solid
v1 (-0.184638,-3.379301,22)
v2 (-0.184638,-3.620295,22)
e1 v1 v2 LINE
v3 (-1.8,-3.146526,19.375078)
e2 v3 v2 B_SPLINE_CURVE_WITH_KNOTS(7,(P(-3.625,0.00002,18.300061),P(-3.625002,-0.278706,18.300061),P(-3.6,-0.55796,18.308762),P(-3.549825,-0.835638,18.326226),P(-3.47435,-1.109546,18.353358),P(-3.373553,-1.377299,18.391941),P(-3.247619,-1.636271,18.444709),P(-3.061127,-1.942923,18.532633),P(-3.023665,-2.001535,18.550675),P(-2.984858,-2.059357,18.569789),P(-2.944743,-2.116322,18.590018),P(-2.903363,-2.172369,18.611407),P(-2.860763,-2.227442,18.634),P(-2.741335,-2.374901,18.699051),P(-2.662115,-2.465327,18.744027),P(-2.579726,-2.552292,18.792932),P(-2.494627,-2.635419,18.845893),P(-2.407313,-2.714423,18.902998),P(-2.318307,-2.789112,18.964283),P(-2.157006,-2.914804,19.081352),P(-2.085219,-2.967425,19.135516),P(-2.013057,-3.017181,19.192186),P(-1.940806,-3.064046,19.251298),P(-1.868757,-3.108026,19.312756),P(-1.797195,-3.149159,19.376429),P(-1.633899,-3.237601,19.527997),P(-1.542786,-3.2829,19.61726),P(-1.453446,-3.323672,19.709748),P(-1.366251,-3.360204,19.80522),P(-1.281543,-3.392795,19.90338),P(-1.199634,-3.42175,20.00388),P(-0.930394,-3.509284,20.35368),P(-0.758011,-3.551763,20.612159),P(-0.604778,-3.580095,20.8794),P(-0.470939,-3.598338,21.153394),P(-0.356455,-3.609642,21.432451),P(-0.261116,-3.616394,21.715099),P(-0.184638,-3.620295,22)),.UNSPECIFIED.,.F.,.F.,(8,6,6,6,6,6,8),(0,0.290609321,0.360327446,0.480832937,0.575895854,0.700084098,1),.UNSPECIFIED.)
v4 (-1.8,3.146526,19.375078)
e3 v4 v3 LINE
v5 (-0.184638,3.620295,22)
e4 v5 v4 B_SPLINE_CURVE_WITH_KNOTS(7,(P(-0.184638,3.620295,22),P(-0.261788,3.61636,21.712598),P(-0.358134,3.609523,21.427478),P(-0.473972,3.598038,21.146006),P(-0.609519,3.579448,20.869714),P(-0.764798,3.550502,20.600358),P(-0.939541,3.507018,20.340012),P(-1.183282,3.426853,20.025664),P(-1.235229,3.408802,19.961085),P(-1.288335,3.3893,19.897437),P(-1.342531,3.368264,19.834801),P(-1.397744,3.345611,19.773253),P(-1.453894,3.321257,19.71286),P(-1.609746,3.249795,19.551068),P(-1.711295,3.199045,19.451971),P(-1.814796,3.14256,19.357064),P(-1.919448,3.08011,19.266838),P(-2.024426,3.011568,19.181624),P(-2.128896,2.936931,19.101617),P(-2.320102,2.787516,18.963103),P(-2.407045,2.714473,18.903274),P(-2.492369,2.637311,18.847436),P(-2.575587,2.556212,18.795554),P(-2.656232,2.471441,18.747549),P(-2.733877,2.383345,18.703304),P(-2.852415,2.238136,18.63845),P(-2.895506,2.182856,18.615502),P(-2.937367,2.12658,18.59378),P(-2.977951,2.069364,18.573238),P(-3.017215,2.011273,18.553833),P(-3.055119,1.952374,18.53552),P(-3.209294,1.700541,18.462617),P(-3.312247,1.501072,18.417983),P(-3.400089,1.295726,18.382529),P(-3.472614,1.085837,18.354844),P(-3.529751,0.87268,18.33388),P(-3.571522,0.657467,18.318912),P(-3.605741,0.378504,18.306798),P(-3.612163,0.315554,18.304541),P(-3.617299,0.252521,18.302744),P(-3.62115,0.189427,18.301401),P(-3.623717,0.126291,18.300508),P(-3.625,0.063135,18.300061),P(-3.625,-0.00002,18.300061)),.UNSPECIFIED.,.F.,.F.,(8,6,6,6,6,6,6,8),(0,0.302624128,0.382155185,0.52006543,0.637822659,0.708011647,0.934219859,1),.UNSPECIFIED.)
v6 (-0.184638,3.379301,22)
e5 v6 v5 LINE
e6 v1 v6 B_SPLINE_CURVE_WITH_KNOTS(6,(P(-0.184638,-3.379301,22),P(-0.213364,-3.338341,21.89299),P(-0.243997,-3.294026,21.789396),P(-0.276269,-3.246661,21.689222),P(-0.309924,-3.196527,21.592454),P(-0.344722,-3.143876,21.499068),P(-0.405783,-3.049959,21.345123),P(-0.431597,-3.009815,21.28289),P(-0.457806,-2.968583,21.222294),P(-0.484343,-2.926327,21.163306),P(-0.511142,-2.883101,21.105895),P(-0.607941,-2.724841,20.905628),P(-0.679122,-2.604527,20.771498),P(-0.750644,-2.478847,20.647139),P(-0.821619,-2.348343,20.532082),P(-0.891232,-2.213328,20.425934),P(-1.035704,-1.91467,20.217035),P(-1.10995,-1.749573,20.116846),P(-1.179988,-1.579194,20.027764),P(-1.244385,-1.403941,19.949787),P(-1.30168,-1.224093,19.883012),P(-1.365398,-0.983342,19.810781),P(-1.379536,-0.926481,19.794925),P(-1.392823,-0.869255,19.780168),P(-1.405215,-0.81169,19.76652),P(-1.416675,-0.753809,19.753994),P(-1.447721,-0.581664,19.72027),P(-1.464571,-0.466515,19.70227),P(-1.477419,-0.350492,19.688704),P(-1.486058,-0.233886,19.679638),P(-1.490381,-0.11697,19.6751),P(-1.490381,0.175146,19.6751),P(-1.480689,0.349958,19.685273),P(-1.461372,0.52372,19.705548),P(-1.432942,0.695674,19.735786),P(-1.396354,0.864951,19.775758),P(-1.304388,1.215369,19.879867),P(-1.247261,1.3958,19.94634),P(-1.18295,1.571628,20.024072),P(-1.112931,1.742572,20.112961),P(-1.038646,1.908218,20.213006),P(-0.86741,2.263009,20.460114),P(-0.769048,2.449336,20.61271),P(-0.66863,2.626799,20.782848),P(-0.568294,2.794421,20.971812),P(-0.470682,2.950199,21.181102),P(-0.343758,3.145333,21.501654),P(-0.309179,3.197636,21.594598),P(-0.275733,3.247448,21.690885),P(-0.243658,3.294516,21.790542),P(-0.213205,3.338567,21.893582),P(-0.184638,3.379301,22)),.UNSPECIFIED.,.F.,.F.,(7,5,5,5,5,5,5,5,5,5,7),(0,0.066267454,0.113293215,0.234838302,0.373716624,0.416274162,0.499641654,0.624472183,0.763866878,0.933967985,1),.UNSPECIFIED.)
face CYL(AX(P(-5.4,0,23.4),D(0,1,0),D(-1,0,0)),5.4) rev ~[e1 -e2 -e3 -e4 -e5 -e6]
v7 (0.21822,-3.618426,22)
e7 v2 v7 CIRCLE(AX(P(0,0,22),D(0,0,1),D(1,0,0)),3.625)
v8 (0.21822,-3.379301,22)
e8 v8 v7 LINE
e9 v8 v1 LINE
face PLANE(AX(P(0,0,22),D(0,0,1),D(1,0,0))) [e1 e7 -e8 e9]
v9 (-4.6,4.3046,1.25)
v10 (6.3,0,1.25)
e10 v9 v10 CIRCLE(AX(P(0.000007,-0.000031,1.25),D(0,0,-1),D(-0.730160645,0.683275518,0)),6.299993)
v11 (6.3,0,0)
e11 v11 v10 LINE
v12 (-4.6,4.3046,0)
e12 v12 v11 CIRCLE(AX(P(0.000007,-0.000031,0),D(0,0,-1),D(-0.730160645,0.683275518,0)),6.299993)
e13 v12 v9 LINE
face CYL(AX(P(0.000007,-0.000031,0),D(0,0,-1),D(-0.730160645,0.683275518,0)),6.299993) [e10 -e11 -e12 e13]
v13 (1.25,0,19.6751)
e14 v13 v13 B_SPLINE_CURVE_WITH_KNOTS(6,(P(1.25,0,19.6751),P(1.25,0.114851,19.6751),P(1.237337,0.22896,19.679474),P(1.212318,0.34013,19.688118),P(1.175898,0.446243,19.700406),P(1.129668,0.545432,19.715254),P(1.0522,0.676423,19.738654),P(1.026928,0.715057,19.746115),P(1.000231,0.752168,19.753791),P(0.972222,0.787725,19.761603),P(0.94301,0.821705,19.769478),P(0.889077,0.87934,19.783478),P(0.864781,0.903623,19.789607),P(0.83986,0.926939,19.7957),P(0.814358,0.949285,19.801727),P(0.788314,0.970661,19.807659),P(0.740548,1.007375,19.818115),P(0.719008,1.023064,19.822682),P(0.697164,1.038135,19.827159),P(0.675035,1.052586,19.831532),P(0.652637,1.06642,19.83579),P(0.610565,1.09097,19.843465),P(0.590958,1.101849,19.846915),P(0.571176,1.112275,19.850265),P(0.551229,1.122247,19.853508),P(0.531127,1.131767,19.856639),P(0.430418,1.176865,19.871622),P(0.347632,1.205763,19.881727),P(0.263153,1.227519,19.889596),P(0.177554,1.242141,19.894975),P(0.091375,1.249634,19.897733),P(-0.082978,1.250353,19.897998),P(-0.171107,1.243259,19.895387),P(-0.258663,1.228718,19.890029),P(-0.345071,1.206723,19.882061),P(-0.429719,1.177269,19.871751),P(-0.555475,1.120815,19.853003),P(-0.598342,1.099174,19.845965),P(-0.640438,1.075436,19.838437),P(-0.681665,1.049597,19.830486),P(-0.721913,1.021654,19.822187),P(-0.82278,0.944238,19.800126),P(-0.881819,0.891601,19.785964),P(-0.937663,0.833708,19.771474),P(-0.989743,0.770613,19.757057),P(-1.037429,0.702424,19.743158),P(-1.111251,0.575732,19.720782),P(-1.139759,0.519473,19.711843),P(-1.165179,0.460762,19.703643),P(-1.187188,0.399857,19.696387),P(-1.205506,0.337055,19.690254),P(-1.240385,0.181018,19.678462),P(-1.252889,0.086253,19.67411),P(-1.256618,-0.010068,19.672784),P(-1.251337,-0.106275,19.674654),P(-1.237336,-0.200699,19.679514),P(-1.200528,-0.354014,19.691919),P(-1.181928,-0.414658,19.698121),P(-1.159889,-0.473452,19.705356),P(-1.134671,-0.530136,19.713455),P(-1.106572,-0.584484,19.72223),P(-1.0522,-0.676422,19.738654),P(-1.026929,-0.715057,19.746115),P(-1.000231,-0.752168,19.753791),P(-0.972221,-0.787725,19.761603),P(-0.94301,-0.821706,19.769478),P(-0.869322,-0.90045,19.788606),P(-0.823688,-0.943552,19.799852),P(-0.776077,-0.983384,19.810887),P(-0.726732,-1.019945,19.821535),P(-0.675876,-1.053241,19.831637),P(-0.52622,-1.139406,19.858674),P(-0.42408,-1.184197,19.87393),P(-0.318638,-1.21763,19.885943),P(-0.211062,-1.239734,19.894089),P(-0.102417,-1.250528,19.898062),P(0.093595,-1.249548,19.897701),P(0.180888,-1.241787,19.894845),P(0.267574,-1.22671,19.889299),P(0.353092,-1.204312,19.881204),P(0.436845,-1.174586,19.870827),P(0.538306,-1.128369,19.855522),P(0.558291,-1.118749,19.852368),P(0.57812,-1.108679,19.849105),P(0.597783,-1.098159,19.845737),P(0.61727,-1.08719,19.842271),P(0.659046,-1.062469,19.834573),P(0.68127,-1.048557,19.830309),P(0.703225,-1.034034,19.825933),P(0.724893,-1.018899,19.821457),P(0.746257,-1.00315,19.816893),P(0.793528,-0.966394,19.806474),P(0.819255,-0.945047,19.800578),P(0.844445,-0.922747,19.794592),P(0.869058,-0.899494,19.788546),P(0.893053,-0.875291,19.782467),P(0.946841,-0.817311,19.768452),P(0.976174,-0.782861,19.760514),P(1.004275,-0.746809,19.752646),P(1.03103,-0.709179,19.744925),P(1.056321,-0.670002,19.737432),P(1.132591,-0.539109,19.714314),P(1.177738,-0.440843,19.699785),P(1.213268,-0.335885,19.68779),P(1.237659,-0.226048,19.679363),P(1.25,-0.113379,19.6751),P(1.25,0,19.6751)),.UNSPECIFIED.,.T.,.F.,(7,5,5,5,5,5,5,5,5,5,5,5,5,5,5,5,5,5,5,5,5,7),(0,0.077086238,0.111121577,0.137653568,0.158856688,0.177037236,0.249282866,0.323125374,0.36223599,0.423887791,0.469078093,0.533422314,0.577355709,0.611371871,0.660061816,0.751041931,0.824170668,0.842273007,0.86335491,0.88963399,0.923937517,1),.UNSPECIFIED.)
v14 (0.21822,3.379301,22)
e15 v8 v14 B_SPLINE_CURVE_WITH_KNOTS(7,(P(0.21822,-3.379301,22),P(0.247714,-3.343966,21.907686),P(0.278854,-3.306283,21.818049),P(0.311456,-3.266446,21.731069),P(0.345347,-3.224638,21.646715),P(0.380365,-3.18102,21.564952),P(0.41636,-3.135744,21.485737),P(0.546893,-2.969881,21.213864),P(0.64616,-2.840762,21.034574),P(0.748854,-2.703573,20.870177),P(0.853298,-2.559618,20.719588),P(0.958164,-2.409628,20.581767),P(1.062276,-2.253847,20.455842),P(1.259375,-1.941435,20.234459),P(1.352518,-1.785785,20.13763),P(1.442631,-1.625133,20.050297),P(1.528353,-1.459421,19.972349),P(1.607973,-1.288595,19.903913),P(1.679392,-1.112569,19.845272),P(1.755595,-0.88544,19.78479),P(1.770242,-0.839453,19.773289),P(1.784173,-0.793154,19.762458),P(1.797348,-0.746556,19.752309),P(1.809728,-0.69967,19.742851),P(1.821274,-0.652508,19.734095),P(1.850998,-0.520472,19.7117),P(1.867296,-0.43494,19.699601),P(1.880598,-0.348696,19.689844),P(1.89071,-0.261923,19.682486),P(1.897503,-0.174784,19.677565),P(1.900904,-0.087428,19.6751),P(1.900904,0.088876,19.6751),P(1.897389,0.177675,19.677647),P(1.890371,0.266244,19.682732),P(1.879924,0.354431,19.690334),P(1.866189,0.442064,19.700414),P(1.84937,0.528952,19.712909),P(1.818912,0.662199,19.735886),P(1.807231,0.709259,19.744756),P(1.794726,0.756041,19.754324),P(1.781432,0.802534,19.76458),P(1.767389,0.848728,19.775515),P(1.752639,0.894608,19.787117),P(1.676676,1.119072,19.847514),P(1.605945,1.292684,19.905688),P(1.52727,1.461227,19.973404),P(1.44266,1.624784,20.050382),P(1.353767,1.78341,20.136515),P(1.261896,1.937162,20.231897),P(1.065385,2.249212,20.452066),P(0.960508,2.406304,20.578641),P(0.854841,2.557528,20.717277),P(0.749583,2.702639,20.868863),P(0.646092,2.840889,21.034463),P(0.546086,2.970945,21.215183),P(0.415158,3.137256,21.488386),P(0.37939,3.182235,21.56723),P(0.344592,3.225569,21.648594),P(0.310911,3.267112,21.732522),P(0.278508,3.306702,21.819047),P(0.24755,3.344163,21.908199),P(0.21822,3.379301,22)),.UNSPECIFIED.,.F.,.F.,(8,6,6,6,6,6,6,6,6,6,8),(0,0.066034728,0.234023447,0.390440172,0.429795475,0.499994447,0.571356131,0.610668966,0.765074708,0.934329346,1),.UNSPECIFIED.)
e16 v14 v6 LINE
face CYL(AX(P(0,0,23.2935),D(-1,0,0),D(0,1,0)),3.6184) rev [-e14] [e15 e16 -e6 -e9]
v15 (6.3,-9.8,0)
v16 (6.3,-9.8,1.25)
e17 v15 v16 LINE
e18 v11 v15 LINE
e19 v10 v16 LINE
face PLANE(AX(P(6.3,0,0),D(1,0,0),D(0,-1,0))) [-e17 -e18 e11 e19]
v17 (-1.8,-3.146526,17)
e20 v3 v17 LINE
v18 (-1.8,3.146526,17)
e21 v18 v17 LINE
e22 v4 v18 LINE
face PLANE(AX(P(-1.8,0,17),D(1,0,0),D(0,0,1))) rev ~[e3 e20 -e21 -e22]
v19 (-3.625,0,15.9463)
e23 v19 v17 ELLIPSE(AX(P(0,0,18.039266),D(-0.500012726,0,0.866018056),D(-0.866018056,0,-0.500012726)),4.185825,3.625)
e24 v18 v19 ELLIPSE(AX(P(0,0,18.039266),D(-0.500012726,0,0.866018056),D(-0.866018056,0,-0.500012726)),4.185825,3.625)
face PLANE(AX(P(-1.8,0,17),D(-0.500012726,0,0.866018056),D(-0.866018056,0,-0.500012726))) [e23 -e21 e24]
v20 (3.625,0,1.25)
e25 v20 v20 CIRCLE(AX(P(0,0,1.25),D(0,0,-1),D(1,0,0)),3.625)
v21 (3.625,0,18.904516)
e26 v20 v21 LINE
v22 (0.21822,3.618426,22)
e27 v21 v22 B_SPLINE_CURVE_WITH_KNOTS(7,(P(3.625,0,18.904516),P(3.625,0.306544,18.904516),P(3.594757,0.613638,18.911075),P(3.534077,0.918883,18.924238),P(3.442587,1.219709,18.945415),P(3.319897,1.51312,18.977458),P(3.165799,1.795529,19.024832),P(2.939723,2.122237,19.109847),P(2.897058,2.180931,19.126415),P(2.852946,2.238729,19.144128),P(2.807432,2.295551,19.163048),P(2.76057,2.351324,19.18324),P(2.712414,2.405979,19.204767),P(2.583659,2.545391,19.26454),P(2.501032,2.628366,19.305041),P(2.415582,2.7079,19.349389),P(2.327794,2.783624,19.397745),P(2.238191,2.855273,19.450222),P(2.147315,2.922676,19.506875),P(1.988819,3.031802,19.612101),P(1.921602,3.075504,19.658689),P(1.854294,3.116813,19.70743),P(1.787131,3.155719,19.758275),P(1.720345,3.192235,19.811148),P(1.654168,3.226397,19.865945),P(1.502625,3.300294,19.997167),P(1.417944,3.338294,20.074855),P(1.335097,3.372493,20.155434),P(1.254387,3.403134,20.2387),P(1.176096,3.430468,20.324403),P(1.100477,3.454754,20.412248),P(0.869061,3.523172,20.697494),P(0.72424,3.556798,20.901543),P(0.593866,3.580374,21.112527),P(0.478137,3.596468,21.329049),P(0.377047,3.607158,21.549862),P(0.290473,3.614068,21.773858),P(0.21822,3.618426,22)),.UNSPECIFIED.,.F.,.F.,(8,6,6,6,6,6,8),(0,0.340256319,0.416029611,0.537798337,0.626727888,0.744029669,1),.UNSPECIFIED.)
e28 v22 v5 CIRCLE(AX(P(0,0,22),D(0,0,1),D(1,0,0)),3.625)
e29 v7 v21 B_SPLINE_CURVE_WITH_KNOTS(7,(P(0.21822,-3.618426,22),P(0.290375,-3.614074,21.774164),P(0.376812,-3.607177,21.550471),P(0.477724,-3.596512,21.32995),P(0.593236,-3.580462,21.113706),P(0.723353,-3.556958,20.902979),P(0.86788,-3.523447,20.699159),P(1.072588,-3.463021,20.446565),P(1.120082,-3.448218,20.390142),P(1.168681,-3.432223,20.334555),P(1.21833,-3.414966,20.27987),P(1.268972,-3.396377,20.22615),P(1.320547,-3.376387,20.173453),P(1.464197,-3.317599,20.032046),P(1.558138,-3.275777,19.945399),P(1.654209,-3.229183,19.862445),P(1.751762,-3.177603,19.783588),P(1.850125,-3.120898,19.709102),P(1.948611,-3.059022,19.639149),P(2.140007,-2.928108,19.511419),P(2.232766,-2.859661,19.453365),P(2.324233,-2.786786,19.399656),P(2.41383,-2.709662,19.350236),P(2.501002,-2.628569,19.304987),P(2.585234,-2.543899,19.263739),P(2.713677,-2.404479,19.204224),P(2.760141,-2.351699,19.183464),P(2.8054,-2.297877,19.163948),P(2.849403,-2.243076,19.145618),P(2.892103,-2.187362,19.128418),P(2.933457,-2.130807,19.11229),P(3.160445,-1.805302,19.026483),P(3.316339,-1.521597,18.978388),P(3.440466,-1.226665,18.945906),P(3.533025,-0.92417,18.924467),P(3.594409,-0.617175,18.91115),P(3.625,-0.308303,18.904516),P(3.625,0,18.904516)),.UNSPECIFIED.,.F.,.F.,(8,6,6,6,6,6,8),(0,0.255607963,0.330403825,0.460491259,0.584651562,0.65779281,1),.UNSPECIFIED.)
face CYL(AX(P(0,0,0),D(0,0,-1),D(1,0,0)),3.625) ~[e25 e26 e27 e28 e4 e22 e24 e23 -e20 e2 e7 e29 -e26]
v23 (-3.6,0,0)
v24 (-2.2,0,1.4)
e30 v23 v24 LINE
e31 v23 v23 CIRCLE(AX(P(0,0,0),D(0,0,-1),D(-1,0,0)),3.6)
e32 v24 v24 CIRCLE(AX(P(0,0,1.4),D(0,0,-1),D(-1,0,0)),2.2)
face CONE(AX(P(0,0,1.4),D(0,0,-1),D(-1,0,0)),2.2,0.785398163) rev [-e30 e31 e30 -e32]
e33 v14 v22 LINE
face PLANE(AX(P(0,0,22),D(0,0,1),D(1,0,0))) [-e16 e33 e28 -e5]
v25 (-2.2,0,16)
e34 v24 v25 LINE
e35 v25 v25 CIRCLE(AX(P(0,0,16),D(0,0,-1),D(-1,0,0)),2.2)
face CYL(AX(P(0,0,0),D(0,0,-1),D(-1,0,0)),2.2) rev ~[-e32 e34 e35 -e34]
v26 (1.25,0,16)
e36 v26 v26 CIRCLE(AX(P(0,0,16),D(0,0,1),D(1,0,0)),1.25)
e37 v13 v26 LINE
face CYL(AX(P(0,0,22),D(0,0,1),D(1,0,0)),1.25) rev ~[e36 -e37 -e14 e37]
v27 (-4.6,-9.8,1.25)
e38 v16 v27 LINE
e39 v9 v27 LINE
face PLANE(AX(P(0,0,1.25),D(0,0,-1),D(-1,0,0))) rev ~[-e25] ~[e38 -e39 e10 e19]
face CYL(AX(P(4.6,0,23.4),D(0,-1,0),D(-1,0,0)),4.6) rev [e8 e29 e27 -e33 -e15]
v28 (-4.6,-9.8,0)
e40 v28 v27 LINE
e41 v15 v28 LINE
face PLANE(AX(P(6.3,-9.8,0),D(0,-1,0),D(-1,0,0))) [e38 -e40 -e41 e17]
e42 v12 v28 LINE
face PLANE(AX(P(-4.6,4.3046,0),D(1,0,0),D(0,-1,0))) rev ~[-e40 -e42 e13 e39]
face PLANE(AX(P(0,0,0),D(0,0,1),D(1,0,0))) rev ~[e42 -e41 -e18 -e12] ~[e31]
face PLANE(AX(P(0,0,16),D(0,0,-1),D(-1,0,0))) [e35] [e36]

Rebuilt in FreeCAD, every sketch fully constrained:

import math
import FreeCAD as App
import Part
import Sketcher

V = App.Vector
Q = App.Units.Quantity


def edges_at(feature, points):
    """Names of the edges that pass closest to the given points."""
    edges = feature.Shape.Edges
    near = lambda p: min(range(len(edges)), key=lambda i: edges[i].distToShape(Part.Vertex(*p))[0])
    return sorted({f"Edge{near(p) + 1}" for p in points})

doc = App.newDocument("Part")
body = doc.addObject("PartDesign::Body", "Body")

# Sketch on XY plane
sketch1 = body.newObject("Sketcher::SketchObject", "Sketch")
sketch1.AttachmentSupport = (doc.getObject("XY_Plane"), [""])
sketch1.MapMode = "FlatFace"
sketch1.addGeometry(Part.Circle(V(0, 0, 0), V(0, 0, 1), 3.6), False)
sketch1.addConstraint(Sketcher.Constraint("Coincident", 0, 3, -1, 1))
sketch1.addConstraint(Sketcher.Constraint("Diameter", 0, Q("7.25 mm")))
pad1 = body.newObject("PartDesign::Pad", "Pad")
pad1.Profile = sketch1
pad1.Length = 22

# Sketch on XY plane
sketch2 = body.newObject("Sketcher::SketchObject", "Sketch001")
sketch2.AttachmentSupport = (doc.getObject("XY_Plane"), [""])
sketch2.MapMode = "FlatFace"
sketch2.addGeometry(Part.LineSegment(V(-5, -10, 0), V(-5, 4, 0)), False)
sketch2.addGeometry(Part.ArcOfCircle(Part.Circle(V(0, 0, 0), V(0, 0, 1), 6), math.radians(0), math.radians(137)), False)
sketch2.addGeometry(Part.LineSegment(V(6, 0, 0), V(6, -10, 0)), False)
sketch2.addGeometry(Part.LineSegment(V(6, -10, 0), V(-5, -10, 0)), False)
sketch2.addConstraint(Sketcher.Constraint("Coincident", 0, 2, 1, 2))
sketch2.addConstraint(Sketcher.Constraint("Tangent", 1, 1, 2, 1))
sketch2.addConstraint(Sketcher.Constraint("Coincident", 2, 2, 3, 1))
sketch2.addConstraint(Sketcher.Constraint("Coincident", 3, 2, 0, 1))
sketch2.addConstraint(Sketcher.Constraint("Vertical", 0))
sketch2.addConstraint(Sketcher.Constraint("Vertical", 2))
sketch2.addConstraint(Sketcher.Constraint("Horizontal", 3))
sketch2.addConstraint(Sketcher.Constraint("Coincident", 1, 3, -1, 1))
sketch2.addConstraint(Sketcher.Constraint("Radius", 1, Q("6.3 mm")))
sketch2.addConstraint(Sketcher.Constraint("DistanceY", 2, 2, 2, 1, Q("9.8 mm")))
sketch2.addConstraint(Sketcher.Constraint("DistanceX", 0, 2, -1, 1, Q("4.6 mm")))
pad2 = body.newObject("PartDesign::Pad", "Pad001")
pad2.Profile = sketch2
pad2.Length = 1.25

# Sketch on XY plane
sketch3 = body.newObject("Sketcher::SketchObject", "Sketch002")
sketch3.AttachmentSupport = (doc.getObject("XY_Plane"), [""])
sketch3.MapMode = "FlatFace"
sketch3.addGeometry(Part.Circle(V(0, 0, 0), V(0, 0, 1), 2.2), False)
sketch3.addConstraint(Sketcher.Constraint("Coincident", 0, 3, -1, 1))
sketch3.addConstraint(Sketcher.Constraint("Diameter", 0, Q("4.4 mm")))
pocket1 = body.newObject("PartDesign::Pocket", "Pocket")
pocket1.Profile = sketch3
pocket1.Length = 16
pocket1.Reversed = True

# Sketch on XY plane
sketch4 = body.newObject("Sketcher::SketchObject", "Sketch003")
sketch4.AttachmentSupport = (doc.getObject("XY_Plane"), [""])
sketch4.MapMode = "FlatFace"
sketch4.AttachmentOffset = App.Placement(V(0, 0, 22), App.Rotation())
sketch4.addGeometry(Part.Circle(V(0, 0, 0), V(0, 0, 1), 1.2), False)
sketch4.addConstraint(Sketcher.Constraint("Coincident", 0, 3, -1, 1))
sketch4.addConstraint(Sketcher.Constraint("Diameter", 0, Q("2.5 mm")))
pocket2 = body.newObject("PartDesign::Pocket", "Pocket001")
pocket2.Profile = sketch4
pocket2.Type = "UpToFirst"
doc.recompute()

chamfer = body.newObject("PartDesign::Chamfer", "Chamfer")
chamfer.Base = (pocket2, edges_at(pocket2, [(2.2, 0, 0)]))
chamfer.Size = 1.4

# Sketch on XZ plane
sketch5 = body.newObject("Sketcher::SketchObject", "Sketch004")
sketch5.AttachmentSupport = (doc.getObject("XZ_Plane"), [""])
sketch5.MapMode = "FlatFace"
sketch5.addGeometry(Part.LineSegment(V(-1.8, 17, 0), V(-3.6, 15.9, 0)), False)
sketch5.addGeometry(Part.LineSegment(V(-3.6, 15.9, 0), V(-3.6, 22, 0)), False)
sketch5.addGeometry(Part.LineSegment(V(-3.6, 22, 0), V(-1.8, 22, 0)), False)
sketch5.addGeometry(Part.LineSegment(V(-1.8, 22, 0), V(-1.8, 17, 0)), False)
sketch5.addConstraint(Sketcher.Constraint("Coincident", 0, 2, 1, 1))
sketch5.addConstraint(Sketcher.Constraint("Coincident", 1, 2, 2, 1))
sketch5.addConstraint(Sketcher.Constraint("Coincident", 2, 2, 3, 1))
sketch5.addConstraint(Sketcher.Constraint("Coincident", 3, 2, 0, 1))
sketch5.addConstraint(Sketcher.Constraint("Vertical", 1))
sketch5.addConstraint(Sketcher.Constraint("Horizontal", 2))
sketch5.addConstraint(Sketcher.Constraint("Vertical", 3))
sketch5.addConstraint(Sketcher.Constraint("DistanceY", -1, 1, 3, 2, Q("17 mm")))
sketch5.addConstraint(Sketcher.Constraint("DistanceY", 3, 2, 3, 1, Q("5 mm")))
sketch5.addConstraint(Sketcher.Constraint("Angle", 0, Q("-149.9992 deg")))
sketch5.addConstraint(Sketcher.Constraint("DistanceX", 2, 2, -1, 1, Q("1.8 mm")))
sketch5.addConstraint(Sketcher.Constraint("DistanceX", 2, 1, 2, 2, Q("1.825 mm")))
pocket3 = body.newObject("PartDesign::Pocket", "Pocket002")
pocket3.Profile = sketch5
pocket3.Type = "ThroughAll"
pocket3.Midplane = True

# Sketch on XZ plane
sketch6 = body.newObject("Sketcher::SketchObject", "Sketch005")
sketch6.AttachmentSupport = (doc.getObject("XZ_Plane"), [""])
sketch6.MapMode = "FlatFace"
sketch6.addGeometry(Part.Circle(V(-5.4, 23.4, 0), V(0, 0, 1), 5.4), False)
sketch6.addGeometry(Part.Circle(V(4.6, 23.4, 0), V(0, 0, 1), 4.6), False)
sketch6.addConstraint(Sketcher.Constraint("Horizontal", 0, 3, 1, 3))
sketch6.addConstraint(Sketcher.Constraint("Diameter", 0, Q("10.8 mm")))
sketch6.addConstraint(Sketcher.Constraint("Diameter", 1, Q("9.2 mm")))
sketch6.addConstraint(Sketcher.Constraint("DistanceX", 0, 3, -1, 1, Q("5.4 mm")))
sketch6.addConstraint(Sketcher.Constraint("DistanceX", -1, 1, 1, 3, Q("4.6 mm")))
sketch6.addConstraint(Sketcher.Constraint("DistanceY", -1, 1, 0, 3, Q("23.4 mm")))
pocket4 = body.newObject("PartDesign::Pocket", "Pocket003")
pocket4.Profile = sketch6
pocket4.Type = "ThroughAll"
pocket4.Midplane = True

# Sketch on YZ plane
sketch7 = body.newObject("Sketcher::SketchObject", "Sketch006")
sketch7.AttachmentSupport = (doc.getObject("YZ_Plane"), [""])
sketch7.MapMode = "FlatFace"
sketch7.addGeometry(Part.Circle(V(0, 23.3, 0), V(0, 0, 1), 3.6), False)
sketch7.addConstraint(Sketcher.Constraint("PointOnObject", 0, 3, -2))
sketch7.addConstraint(Sketcher.Constraint("Diameter", 0, Q("7.2368 mm")))
sketch7.addConstraint(Sketcher.Constraint("DistanceY", -1, 1, 0, 3, Q("23.2935 mm")))
pocket5 = body.newObject("PartDesign::Pocket", "Pocket004")
pocket5.Profile = sketch7
pocket5.Type = "ThroughAll"
pocket5.Midplane = True

doc.recompute()
